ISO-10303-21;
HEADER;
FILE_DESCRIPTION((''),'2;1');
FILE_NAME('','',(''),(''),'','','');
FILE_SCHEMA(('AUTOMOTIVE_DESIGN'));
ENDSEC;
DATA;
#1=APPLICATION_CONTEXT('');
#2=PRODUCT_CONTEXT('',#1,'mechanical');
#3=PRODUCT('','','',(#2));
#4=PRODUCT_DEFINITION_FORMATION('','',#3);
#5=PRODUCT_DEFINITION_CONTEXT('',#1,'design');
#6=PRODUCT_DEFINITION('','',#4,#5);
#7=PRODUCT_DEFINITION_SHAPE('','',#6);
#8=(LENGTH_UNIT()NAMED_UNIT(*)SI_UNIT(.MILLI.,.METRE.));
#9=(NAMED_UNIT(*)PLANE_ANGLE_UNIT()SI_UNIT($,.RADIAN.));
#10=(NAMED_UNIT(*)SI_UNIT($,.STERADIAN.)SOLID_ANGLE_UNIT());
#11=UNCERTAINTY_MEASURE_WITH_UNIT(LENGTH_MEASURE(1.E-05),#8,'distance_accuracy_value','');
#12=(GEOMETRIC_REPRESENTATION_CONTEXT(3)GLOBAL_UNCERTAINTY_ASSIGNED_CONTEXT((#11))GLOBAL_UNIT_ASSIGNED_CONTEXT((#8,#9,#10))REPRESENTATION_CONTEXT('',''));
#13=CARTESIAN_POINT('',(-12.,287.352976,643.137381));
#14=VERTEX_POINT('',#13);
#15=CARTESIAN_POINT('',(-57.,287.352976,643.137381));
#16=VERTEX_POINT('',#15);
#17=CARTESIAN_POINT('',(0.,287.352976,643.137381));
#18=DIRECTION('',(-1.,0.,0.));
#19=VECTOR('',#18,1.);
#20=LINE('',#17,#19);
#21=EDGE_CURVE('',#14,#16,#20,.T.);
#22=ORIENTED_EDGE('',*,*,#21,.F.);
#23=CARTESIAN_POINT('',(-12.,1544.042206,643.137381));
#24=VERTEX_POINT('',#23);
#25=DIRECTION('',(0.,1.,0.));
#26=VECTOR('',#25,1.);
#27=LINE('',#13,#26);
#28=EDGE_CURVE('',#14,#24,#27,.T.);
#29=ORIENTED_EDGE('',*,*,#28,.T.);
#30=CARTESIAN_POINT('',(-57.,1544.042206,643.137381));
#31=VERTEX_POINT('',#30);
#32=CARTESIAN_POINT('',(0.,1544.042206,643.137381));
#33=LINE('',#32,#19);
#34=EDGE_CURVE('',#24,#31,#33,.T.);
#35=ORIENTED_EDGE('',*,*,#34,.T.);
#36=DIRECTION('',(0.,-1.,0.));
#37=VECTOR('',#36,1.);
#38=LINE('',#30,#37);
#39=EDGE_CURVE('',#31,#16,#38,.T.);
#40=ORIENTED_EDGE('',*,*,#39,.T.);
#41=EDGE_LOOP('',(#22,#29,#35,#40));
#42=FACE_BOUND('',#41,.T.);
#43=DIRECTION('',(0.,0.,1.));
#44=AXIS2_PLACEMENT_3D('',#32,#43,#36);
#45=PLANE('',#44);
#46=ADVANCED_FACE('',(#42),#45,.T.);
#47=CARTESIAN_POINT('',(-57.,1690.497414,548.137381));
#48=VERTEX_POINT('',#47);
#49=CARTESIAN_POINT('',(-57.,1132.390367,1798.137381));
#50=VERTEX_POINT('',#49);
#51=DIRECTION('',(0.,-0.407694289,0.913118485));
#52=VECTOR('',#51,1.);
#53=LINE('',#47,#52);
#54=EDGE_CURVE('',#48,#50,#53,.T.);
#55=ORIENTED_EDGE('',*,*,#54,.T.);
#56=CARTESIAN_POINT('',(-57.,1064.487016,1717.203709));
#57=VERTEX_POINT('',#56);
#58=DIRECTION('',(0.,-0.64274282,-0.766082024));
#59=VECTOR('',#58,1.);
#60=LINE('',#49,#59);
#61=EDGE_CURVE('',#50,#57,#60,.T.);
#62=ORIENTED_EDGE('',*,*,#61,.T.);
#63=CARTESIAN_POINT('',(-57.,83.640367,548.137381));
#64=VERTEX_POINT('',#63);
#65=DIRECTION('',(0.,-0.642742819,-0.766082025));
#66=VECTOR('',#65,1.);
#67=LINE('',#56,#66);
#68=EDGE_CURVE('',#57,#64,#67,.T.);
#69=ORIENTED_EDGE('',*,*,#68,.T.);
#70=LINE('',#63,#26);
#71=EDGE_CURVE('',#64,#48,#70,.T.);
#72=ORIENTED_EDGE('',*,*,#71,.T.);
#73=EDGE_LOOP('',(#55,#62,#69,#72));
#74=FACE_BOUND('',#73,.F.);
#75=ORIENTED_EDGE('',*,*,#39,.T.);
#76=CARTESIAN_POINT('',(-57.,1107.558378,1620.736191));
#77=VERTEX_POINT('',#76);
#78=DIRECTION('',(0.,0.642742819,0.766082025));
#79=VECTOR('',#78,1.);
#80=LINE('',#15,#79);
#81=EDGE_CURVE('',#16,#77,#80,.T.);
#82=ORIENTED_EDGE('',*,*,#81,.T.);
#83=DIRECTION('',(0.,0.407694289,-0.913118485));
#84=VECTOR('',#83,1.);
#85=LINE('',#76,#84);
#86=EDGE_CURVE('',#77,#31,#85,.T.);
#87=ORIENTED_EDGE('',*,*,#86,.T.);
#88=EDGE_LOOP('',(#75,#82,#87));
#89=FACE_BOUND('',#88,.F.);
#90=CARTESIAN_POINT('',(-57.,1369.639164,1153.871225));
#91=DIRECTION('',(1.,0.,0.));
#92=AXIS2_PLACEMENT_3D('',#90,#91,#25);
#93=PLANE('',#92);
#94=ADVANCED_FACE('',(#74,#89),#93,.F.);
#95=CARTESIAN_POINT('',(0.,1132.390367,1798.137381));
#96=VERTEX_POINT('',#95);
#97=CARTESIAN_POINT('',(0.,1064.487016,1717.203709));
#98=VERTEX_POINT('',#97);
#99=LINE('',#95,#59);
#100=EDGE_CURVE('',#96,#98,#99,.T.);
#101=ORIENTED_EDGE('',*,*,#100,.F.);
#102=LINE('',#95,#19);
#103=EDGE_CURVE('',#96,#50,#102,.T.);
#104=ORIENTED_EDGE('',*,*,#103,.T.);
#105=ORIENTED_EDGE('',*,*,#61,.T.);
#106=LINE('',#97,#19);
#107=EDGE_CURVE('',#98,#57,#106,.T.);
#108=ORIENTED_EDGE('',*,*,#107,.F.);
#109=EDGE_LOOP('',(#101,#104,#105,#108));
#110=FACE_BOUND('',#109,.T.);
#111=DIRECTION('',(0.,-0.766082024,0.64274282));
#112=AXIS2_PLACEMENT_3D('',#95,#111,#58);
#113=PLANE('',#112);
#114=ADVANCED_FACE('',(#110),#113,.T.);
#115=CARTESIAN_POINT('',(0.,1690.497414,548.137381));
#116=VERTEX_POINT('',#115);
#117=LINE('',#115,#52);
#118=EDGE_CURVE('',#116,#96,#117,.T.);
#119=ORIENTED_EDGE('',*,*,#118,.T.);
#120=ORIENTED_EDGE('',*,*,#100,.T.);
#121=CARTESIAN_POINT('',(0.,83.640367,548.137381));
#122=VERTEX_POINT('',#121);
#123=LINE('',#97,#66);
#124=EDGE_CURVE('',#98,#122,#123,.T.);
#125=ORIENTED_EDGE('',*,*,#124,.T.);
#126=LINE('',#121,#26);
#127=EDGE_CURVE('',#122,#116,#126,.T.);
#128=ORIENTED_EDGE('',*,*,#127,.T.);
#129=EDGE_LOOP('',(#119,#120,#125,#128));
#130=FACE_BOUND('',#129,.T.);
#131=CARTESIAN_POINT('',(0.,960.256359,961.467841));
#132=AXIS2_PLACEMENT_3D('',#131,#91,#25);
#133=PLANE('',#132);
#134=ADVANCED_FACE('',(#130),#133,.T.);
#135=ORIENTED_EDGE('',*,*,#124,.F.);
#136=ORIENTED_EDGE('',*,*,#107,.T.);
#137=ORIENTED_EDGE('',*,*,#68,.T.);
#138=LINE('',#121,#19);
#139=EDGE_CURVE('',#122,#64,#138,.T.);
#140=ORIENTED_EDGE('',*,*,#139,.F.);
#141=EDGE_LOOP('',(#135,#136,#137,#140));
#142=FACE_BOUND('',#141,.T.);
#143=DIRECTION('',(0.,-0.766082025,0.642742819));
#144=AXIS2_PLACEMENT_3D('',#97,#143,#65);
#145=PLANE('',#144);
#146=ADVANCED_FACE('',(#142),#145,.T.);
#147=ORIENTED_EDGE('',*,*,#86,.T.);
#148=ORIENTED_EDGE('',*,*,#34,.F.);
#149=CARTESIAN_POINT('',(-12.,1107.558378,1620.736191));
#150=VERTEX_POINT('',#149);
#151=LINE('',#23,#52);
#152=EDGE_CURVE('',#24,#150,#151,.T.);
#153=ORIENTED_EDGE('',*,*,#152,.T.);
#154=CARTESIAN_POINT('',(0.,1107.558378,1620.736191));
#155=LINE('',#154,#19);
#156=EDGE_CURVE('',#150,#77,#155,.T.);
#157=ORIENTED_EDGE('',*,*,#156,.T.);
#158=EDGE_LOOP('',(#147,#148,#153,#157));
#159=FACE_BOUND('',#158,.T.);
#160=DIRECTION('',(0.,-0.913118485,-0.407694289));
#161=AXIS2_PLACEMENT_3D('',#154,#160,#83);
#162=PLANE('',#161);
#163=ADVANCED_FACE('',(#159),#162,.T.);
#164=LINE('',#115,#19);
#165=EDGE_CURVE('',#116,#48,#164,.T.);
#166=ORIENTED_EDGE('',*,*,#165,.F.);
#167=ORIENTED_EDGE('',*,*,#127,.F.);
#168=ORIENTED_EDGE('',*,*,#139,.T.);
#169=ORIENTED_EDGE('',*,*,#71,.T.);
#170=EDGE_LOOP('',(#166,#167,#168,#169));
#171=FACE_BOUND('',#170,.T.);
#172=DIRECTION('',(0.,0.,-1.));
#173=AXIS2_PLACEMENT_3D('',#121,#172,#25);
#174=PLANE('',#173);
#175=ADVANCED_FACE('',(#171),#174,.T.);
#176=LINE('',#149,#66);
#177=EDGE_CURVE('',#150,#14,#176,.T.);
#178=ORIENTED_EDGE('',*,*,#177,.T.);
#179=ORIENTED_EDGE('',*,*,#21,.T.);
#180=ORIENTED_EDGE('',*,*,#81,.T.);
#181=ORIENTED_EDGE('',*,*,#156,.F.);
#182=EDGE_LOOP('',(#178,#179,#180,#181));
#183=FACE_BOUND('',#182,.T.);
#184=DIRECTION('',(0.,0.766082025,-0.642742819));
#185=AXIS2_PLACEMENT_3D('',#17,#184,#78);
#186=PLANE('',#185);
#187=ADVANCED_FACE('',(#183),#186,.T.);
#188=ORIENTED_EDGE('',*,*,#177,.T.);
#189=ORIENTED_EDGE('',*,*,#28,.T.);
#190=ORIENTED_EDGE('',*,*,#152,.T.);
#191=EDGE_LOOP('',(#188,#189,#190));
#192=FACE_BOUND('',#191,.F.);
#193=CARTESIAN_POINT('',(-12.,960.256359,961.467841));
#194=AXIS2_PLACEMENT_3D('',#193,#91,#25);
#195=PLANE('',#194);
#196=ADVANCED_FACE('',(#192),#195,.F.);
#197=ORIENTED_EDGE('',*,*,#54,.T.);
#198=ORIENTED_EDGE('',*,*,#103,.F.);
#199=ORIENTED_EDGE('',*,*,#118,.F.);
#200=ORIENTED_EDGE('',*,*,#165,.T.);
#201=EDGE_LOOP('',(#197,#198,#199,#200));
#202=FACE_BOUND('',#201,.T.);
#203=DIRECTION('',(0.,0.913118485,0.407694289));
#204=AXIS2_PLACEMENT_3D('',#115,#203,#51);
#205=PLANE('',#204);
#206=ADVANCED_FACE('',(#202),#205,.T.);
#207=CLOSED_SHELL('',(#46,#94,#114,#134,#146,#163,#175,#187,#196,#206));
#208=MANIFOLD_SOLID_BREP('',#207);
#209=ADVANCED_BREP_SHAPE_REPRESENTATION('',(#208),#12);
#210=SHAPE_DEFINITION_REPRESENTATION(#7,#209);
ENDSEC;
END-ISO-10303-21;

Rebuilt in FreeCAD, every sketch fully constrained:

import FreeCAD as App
import Part
import Sketcher


def add_polygon(sketch, points):
    """Adds a closed chain of lines whose ends are joined by coincident constraints."""
    first, n = sketch.GeometryCount, len(points)
    for a, b in zip(points, points[1:] + points[:1]):
        sketch.addGeometry(Part.LineSegment(App.Vector(*a, 0), App.Vector(*b, 0)), False)
    for i in range(n):
        sketch.addConstraint(Sketcher.Constraint("Coincident", first + i, 2, first + (i + 1) % n, 1))

doc = App.newDocument("Part")
params = doc.addObject("Spreadsheet::Sheet", "Params")
for row, (alias, value) in enumerate([
    ("pad1_length", "57 mm"),
    ("pad2_length", "12 mm"),
], start=1):
    params.set(f"A{row}", alias)
    params.set(f"B{row}", "=" + value)
    params.setAlias(f"B{row}", alias)

body = doc.addObject("PartDesign::Body", "Body")

# Sketch on YZ plane
sketch1 = body.newObject("Sketcher::SketchObject", "Sketch")
sketch1.AttachmentSupport = (doc.getObject("YZ_Plane"), [""])
sketch1.MapMode = "FlatFace"
add_polygon(sketch1, [(1690.497414, 548.137381), (1132.390367, 1798.137381), (1064.487016, 1717.203709), (83.640367, 548.137381)])  # lines 0-3
add_polygon(sketch1, [(1107.558378, 1620.736191), (1544.042206, 643.137381), (287.352976, 643.137381)])  # lines 4-6
sketch1.addConstraint([
    Sketcher.Constraint("Horizontal", 3),
    Sketcher.Constraint("Horizontal", 5),
    Sketcher.Constraint("Parallel", 1, 2),
    Sketcher.Constraint("Parallel", 0, 4),
    Sketcher.Constraint("Parallel", 2, 6),
    Sketcher.Constraint("DistanceY", 2, 2, 0, 2, 1250.0),
    Sketcher.Constraint("DistanceY", 3, 2, 4, 2, 95.0),
    Sketcher.Constraint("DistanceX", 2, 2, 0, 2, 1048.75),
    Sketcher.Constraint("DistanceX", 5, 2, 5, 1, 1256.68923),
    Sketcher.Constraint("DistanceX", 5, 2, 6, 2, 820.205402),
    Sketcher.Constraint("Distance", 2, 1526.03284),
    Sketcher.Constraint("DistanceY", -1, 1, 0, 2, 1798.137381),
    Sketcher.Constraint("DistanceX", -1, 1, 6, 2, 1107.558378),
    Sketcher.Constraint("DistanceX", 1, 2, 4, 2, 479.55519),
])
pad1 = body.newObject("PartDesign::Pad", "Pad")
pad1.Profile = sketch1
pad1.setExpression("Length", "Params.pad1_length")
pad1.Reversed = True

# Sketch on YZ plane
sketch2 = body.newObject("Sketcher::SketchObject", "Sketch001")
sketch2.AttachmentSupport = (doc.getObject("YZ_Plane"), [""])
sketch2.MapMode = "FlatFace"
add_polygon(sketch2, [(287.352976, 643.137381), (1544.042206, 643.137381), (1107.558378, 1620.736191)])  # lines 0-2
sketch2.addConstraint([
    Sketcher.Constraint("Horizontal", 0),
    Sketcher.Constraint("DistanceX", 0, 1, 0, 2, 1256.68923),
    Sketcher.Constraint("DistanceX", 2, 2, 1, 2, 820.205402),
    Sketcher.Constraint("DistanceY", -1, 1, 0, 2, 643.137381),
    Sketcher.Constraint("DistanceX", -1, 1, 1, 2, 1107.558378),
    Sketcher.Constraint("DistanceY", -1, 1, 1, 2, 1620.736191),
])
pad2 = body.newObject("PartDesign::Pad", "Pad001")
pad2.Profile = sketch2
pad2.setExpression("Length", "Params.pad2_length")
pad2.Reversed = True

doc.recompute()
